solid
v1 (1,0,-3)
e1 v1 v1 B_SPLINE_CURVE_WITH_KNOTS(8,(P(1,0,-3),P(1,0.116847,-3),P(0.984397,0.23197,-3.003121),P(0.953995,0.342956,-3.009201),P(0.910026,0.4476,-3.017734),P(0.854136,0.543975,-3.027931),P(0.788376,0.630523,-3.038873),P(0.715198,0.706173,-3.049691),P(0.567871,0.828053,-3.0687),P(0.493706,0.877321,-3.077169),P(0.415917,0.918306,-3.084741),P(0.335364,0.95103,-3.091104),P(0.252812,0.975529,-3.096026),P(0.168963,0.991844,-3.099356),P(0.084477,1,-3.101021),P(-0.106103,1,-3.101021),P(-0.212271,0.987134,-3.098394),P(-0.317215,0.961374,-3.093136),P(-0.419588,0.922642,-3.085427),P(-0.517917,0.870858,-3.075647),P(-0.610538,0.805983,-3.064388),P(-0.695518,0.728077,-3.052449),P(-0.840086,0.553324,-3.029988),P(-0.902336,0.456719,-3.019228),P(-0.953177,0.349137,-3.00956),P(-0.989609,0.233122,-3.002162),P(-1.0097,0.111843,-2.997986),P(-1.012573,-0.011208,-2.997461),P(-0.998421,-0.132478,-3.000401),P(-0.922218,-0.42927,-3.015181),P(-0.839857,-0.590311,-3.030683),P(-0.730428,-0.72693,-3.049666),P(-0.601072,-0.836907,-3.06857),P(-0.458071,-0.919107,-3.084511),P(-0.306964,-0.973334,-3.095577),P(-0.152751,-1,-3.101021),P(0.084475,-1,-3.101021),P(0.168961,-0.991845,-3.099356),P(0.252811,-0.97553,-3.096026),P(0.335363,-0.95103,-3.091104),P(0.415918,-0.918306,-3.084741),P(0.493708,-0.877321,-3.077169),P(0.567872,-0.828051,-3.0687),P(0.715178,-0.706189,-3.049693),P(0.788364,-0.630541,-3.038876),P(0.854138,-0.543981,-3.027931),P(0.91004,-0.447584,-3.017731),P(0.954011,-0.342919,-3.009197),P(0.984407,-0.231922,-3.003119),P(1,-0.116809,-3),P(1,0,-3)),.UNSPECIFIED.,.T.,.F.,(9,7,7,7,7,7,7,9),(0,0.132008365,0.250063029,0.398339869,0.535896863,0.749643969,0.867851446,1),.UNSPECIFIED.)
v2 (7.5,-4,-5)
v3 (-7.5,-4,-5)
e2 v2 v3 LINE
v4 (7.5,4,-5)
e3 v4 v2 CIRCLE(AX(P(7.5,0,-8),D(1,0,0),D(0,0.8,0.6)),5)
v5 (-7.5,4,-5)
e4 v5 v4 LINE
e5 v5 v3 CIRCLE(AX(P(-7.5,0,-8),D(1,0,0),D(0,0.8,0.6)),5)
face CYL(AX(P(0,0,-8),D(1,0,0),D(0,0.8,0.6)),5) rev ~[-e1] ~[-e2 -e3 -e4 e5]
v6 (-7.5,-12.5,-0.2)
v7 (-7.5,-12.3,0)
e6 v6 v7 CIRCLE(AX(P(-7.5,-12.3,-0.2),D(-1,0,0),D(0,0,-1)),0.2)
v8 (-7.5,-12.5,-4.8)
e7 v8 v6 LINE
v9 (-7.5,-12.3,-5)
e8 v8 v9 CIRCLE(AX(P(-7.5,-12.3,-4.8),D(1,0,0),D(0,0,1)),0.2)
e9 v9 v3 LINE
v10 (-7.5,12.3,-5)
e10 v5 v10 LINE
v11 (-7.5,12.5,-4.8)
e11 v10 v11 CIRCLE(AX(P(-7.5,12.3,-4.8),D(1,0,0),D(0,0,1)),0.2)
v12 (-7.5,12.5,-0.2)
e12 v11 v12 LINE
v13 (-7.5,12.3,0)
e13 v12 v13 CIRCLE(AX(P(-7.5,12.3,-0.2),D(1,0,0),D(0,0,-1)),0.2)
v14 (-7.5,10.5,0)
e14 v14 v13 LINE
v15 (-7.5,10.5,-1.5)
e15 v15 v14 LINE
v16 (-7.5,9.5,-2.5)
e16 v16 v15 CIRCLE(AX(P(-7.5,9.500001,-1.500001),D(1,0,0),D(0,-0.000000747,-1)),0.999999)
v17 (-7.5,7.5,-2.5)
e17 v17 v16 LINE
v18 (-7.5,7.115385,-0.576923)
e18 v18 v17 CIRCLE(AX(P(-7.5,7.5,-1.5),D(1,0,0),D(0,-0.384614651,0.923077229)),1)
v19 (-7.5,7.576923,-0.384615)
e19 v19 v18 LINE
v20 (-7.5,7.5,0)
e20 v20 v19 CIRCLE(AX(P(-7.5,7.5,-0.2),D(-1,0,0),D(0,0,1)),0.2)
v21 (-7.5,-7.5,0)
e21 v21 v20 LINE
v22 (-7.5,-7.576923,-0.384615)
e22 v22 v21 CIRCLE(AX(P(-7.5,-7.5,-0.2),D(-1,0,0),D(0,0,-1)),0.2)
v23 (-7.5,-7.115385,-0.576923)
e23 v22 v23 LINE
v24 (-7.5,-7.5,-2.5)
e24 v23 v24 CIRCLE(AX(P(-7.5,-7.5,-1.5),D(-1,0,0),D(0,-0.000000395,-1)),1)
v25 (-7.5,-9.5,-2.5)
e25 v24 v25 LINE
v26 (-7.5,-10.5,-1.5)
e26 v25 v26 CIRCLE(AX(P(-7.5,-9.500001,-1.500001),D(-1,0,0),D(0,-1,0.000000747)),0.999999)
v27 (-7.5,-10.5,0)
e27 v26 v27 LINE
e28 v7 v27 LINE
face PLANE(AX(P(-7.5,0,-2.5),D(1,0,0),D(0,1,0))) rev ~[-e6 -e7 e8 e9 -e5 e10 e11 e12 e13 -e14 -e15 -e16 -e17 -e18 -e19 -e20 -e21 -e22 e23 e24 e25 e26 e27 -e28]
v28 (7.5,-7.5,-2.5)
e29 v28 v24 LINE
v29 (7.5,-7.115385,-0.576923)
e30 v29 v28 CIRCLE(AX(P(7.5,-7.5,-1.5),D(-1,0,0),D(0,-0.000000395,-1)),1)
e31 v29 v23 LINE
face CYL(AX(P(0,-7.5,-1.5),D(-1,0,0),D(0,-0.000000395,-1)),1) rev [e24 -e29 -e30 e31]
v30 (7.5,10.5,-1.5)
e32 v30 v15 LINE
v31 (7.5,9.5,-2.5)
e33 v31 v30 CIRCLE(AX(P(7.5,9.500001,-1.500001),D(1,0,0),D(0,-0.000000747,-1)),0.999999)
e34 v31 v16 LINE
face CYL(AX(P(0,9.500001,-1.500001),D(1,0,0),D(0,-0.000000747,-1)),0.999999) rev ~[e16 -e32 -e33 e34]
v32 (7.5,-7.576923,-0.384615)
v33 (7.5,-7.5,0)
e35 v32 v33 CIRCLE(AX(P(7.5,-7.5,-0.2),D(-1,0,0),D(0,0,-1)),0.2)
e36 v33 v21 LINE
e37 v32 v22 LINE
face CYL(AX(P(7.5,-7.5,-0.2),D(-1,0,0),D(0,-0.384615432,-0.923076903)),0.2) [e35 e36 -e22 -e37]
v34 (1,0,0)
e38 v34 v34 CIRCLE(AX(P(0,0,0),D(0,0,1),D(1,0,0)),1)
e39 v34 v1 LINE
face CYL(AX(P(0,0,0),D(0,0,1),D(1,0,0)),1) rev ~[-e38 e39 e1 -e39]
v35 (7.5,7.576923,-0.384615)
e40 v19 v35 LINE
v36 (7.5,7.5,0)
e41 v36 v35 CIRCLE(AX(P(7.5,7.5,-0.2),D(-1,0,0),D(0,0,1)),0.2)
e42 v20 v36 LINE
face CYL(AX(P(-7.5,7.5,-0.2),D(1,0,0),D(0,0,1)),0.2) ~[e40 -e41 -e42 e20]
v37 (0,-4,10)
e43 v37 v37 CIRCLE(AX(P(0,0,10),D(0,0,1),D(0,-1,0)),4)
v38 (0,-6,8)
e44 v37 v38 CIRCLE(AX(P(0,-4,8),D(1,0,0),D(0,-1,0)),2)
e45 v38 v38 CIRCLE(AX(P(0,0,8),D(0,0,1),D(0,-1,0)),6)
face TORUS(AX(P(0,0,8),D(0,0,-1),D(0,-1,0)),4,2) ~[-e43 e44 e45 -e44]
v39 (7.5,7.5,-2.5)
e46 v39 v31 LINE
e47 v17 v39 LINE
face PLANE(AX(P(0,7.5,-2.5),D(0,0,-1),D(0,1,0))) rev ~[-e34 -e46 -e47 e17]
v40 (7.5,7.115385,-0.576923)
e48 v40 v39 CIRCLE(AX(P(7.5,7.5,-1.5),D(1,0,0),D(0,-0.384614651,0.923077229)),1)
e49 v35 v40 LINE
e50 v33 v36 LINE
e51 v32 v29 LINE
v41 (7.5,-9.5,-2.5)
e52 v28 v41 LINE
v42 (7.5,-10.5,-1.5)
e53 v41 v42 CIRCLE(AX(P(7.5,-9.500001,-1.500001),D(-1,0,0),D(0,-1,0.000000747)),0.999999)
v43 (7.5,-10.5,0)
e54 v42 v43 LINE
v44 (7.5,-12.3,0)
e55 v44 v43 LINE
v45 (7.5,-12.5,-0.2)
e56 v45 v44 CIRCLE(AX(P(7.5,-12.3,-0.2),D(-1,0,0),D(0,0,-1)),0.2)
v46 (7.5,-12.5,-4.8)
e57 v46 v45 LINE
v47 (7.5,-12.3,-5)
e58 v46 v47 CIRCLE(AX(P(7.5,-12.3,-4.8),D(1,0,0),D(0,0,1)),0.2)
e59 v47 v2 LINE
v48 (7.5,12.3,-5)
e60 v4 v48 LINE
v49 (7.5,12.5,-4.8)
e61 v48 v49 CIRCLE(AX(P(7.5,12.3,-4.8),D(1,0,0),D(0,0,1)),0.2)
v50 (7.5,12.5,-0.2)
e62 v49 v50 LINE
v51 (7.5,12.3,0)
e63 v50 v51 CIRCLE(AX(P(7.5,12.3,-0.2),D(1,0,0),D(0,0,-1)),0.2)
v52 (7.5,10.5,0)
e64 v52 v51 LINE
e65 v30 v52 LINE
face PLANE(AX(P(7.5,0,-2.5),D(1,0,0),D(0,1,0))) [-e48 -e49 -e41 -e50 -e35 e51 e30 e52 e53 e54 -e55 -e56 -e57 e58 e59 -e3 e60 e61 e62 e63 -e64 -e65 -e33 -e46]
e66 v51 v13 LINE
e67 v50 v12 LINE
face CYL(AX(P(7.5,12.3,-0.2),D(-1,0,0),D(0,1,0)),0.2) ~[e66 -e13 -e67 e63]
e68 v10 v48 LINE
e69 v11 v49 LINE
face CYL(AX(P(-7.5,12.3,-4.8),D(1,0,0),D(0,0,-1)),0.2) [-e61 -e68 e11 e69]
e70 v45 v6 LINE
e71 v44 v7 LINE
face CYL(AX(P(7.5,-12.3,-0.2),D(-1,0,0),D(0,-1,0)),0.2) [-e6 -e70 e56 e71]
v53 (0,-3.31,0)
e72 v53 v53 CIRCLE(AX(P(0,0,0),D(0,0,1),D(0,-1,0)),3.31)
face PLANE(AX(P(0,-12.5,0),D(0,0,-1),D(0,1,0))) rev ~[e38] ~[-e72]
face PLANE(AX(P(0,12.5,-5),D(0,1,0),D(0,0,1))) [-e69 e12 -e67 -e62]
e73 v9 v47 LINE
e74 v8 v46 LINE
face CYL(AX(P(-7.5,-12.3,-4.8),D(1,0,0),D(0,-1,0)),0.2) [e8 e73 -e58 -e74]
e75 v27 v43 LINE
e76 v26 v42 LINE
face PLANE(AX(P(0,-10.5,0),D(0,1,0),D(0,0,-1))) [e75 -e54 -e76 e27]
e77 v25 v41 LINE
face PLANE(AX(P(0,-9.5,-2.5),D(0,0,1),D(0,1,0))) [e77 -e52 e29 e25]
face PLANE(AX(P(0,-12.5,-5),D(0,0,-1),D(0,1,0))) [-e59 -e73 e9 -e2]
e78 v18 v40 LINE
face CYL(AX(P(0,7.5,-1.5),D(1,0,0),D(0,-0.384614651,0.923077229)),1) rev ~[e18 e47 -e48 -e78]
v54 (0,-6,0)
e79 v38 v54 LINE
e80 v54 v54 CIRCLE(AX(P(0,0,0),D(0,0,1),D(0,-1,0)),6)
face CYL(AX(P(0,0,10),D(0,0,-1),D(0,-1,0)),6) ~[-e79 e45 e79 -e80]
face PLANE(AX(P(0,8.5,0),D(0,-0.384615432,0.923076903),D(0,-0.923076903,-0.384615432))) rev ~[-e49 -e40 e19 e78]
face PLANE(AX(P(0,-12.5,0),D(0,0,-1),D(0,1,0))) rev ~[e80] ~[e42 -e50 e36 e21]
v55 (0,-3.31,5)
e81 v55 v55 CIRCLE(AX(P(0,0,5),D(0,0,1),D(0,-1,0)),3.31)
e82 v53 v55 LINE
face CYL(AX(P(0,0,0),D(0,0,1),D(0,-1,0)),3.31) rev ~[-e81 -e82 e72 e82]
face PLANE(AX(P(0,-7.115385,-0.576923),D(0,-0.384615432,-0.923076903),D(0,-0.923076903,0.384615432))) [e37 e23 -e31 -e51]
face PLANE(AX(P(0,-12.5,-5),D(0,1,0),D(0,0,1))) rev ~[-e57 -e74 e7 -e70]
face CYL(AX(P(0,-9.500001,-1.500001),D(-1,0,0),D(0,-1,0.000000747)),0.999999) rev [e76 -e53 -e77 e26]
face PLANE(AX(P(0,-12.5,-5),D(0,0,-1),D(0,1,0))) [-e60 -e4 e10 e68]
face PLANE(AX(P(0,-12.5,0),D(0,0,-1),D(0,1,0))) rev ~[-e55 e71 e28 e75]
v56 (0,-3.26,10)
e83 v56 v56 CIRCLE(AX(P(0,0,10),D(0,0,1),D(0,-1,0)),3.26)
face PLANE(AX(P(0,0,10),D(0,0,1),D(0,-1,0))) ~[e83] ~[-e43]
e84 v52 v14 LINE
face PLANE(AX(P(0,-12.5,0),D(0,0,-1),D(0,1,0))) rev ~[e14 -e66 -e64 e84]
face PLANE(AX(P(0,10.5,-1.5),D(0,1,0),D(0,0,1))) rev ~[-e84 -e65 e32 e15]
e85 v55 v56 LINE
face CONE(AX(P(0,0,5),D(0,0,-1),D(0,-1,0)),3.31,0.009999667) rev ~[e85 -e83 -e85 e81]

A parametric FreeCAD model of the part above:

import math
import FreeCAD as App
import Part
import Sketcher
from FreeCAD import Vector


def edges_at(feature, points):
    """Names of the edges that pass closest to the given points."""
    edges = feature.Shape.Edges
    near = lambda p: min(range(len(edges)), key=lambda i: edges[i].distToShape(Part.Vertex(*p))[0])
    return sorted({f"Edge{near(p) + 1}" for p in points})

doc = App.newDocument("Part")
body = doc.addObject("PartDesign::Body", "Body")

# Sketch on YZ plane
sketch1 = body.newObject("Sketcher::SketchObject", "Sketch")
sketch1.AttachmentSupport = (doc.getObject("YZ_Plane"), [""])
sketch1.MapMode = "FlatFace"
sketch1.addGeometry([
    Part.LineSegment(Vector(-6, 0, 0), Vector(-3.3, 0, 0)),  # 0
    Part.LineSegment(Vector(-3.3, 0, 0), Vector(-3.3, 5, 0)),  # 1
    Part.LineSegment(Vector(-3.3, 5, 0), Vector(-3.3, 10, 0)),  # 2
    Part.LineSegment(Vector(-3.3, 10, 0), Vector(-6, 10, 0)),  # 3
    Part.LineSegment(Vector(-6, 10, 0), Vector(-6, 0, 0)),  # 4
], False)
sketch1.addConstraint([
    Sketcher.Constraint("Coincident", 0, 2, 1, 1),
    Sketcher.Constraint("Coincident", 1, 2, 2, 1),
    Sketcher.Constraint("Coincident", 2, 2, 3, 1),
    Sketcher.Constraint("Coincident", 3, 2, 4, 1),
    Sketcher.Constraint("Coincident", 4, 2, 0, 1),
    Sketcher.Constraint("Horizontal", 0),
    Sketcher.Constraint("Vertical", 1),
    Sketcher.Constraint("Horizontal", 3),
    Sketcher.Constraint("Vertical", 4),
    Sketcher.Constraint("PointOnObject", 0, 2, -1),
    Sketcher.Constraint("DistanceY", 1, 1, 1, 2, 5.0),
    Sketcher.Constraint("DistanceY", 4, 2, 4, 1, 10.0),
    Sketcher.Constraint("DistanceX", 3, 2, -1, 1, 6.0),
    Sketcher.Constraint("DistanceX", 0, 1, 0, 2, 2.69),
    Sketcher.Constraint("DistanceX", 3, 2, 3, 1, 2.74),
])
revolution = body.newObject("PartDesign::Revolution", "Revolution")
revolution.Profile = sketch1
revolution.ReferenceAxis = (sketch1, ["V_Axis"])
revolution.Angle = 360
doc.recompute()

fillet = body.newObject("PartDesign::Fillet", "Fillet")
fillet.Base = (revolution, edges_at(revolution, [(0, 6, 10)]))
fillet.Radius = 2

# Sketch on YZ plane
sketch2 = body.newObject("Sketcher::SketchObject", "Sketch001")
sketch2.AttachmentSupport = (doc.getObject("YZ_Plane"), [""])
sketch2.MapMode = "FlatFace"
sketch2.addGeometry([
    Part.LineSegment(Vector(-12, 0, 0), Vector(-12, -5, 0)),
    Part.LineSegment(Vector(-12, -5, 0), Vector(12, -5, 0)),
    Part.LineSegment(Vector(12, -5, 0), Vector(12, 0, 0)),
    Part.LineSegment(Vector(12, 0, 0), Vector(-12, 0, 0)),
], False)
sketch2.addConstraint([
    Sketcher.Constraint("Coincident", 0, 2, 1, 1),
    Sketcher.Constraint("Coincident", 1, 2, 2, 1),
    Sketcher.Constraint("Coincident", 2, 2, 3, 1),
    Sketcher.Constraint("Coincident", 3, 2, 0, 1),
    Sketcher.Constraint("Vertical", 0),
    Sketcher.Constraint("Horizontal", 1),
    Sketcher.Constraint("Vertical", 2),
    Sketcher.Constraint("Horizontal", 3),
    Sketcher.Constraint("Symmetric", 2, 2, 3, 2, -1, 1),
    Sketcher.Constraint("DistanceX", 1, 1, 1, 2, 25.0),
    Sketcher.Constraint("DistanceY", 0, 2, 0, 1, 5.0),
])
pad1 = body.newObject("PartDesign::Pad", "Pad")
pad1.Profile = sketch2
pad1.Length = 15
pad1.Midplane = True

# Sketch on YZ plane
sketch3 = body.newObject("Sketcher::SketchObject", "Sketch002")
sketch3.AttachmentSupport = (doc.getObject("YZ_Plane"), [""])
sketch3.MapMode = "FlatFace"
sketch3.addGeometry([
    Part.LineSegment(Vector(-8.5, 0, 0), Vector(-10.5, 0, 0)),  # 0
    Part.LineSegment(Vector(-10.5, 0, 0), Vector(-10.5, -1.5, 0)),  # 1
    Part.ArcOfCircle(Part.Circle(Vector(-9.5, -1.5, 0), Vector(0, 0, 1), 1), math.radians(180), math.radians(270)),  # 2
    Part.LineSegment(Vector(-9.5, -2.5, 0), Vector(-7.5, -2.5, 0)),  # 3
    Part.ArcOfCircle(Part.Circle(Vector(-7.5, -1.5, 0), Vector(0, 0, 1), 1), math.radians(-90), math.radians(67)),  # 4
    Part.LineSegment(Vector(-7.1, -0.6, 0), Vector(-8.5, 0, 0)),  # 5
    Part.LineSegment(Vector(10.5, 0, 0), Vector(8.5, 0, 0)),  # 6
    Part.LineSegment(Vector(8.5, 0, 0), Vector(7.1, -0.6, 0)),  # 7
    Part.ArcOfCircle(Part.Circle(Vector(7.5, -1.5, 0), Vector(0, 0, 1), 1), math.radians(113), math.radians(270)),  # 8
    Part.LineSegment(Vector(7.5, -2.5, 0), Vector(9.5, -2.5, 0)),  # 9
    Part.ArcOfCircle(Part.Circle(Vector(9.5, -1.5, 0), Vector(0, 0, 1), 1), math.radians(-90), math.radians(0)),  # 10
    Part.LineSegment(Vector(10.5, -1.5, 0), Vector(10.5, 0, 0)),  # 11
], False)
sketch3.addConstraint([
    Sketcher.Constraint("Coincident", 0, 2, 1, 1),
    Sketcher.Constraint("Tangent", 1, 2, 2, 1),
    Sketcher.Constraint("Tangent", 2, 2, 3, 1),
    Sketcher.Constraint("Tangent", 3, 2, 4, 1),
    Sketcher.Constraint("Tangent", 4, 2, 5, 1),
    Sketcher.Constraint("Coincident", 5, 2, 0, 1),
    Sketcher.Constraint("Coincident", 6, 2, 7, 1),
    Sketcher.Constraint("Tangent", 7, 2, 8, 1),
    Sketcher.Constraint("Tangent", 8, 2, 9, 1),
    Sketcher.Constraint("Tangent", 9, 2, 10, 1),
    Sketcher.Constraint("Tangent", 10, 2, 11, 1),
    Sketcher.Constraint("Coincident", 11, 2, 6, 1),
    Sketcher.Constraint("Horizontal", 0),
    Sketcher.Constraint("Vertical", 1),
    Sketcher.Constraint("Horizontal", 3),
    Sketcher.Constraint("Horizontal", 6),
    Sketcher.Constraint("Horizontal", 9),
    Sketcher.Constraint("Vertical", 11),
    Sketcher.Constraint("Equal", 2, 4),
    Sketcher.Constraint("Equal", 4, 8),
    Sketcher.Constraint("Equal", 8, 10),
    Sketcher.Constraint("Symmetric", 5, 2, 6, 2, -1, 1),
    Sketcher.Constraint("Symmetric", 4, 3, 8, 3, -2),
    Sketcher.Constraint("Symmetric", 0, 2, 11, 2, -2),
    Sketcher.Constraint("Equal", 0, 3),
    Sketcher.Constraint("Radius", 2, 0.999999),
    Sketcher.Constraint("DistanceX", 0, 2, 0, 1, 2.0),
    Sketcher.Constraint("DistanceY", 1, 2, 1, 1, 1.5),
    Sketcher.Constraint("DistanceX", 4, 3, 8, 3, 14.999999),
])
pocket1 = body.newObject("PartDesign::Pocket", "Pocket")
pocket1.Profile = sketch3
pocket1.Length = 25
pocket1.Midplane = True
doc.recompute()

fillet2 = body.newObject("PartDesign::Fillet", "Fillet001")
fillet2.Base = (pocket1, edges_at(pocket1, [
    (0, -8.5, 0),
    (0, 8.5, 0),
    (0, -12.5, 0),
    (0, 12.5, 0),
    (0, -12.5, -5),
    (0, 12.5, -5),
]))
fillet2.Radius = 0.2

# Sketch on YZ plane
sketch4 = body.newObject("Sketcher::SketchObject", "Sketch003")
sketch4.AttachmentSupport = (doc.getObject("YZ_Plane"), [""])
sketch4.MapMode = "FlatFace"
sketch4.addGeometry([
    Part.LineSegment(Vector(-4, -5, 0), Vector(4, -5, 0)),
    Part.ArcOfCircle(Part.Circle(Vector(0, -8, 0), Vector(0, 0, 1), 5), math.radians(37), math.radians(143)),
], False)
sketch4.addConstraint([
    Sketcher.Constraint("Coincident", 0, 1, 1, 2),
    Sketcher.Constraint("Coincident", 1, 1, 0, 2),
    Sketcher.Constraint("Horizontal", 0),
    Sketcher.Constraint("PointOnObject", 1, 3, -2),
    Sketcher.Constraint("Radius", 1, 5.0),
    Sketcher.Constraint("DistanceX", 0, 1, 0, 2, 8.0),
    Sketcher.Constraint("DistanceY", 1, 3, -1, 1, 8.0),
])
pocket2 = body.newObject("PartDesign::Pocket", "Pocket001")
pocket2.Profile = sketch4
pocket2.Length = 25
pocket2.Midplane = True

# Sketch on XY plane
sketch5 = body.newObject("Sketcher::SketchObject", "Sketch004")
sketch5.AttachmentSupport = (doc.getObject("XY_Plane"), [""])
sketch5.MapMode = "FlatFace"
sketch5.addGeometry(Part.Circle(Vector(0, 0, 0), Vector(0, 0, 1), 1), False)
sketch5.addConstraint([
    Sketcher.Constraint("Coincident", 0, 3, -1, 1),
    Sketcher.Constraint("Diameter", 0, 2.0),
])
pocket3 = body.newObject("PartDesign::Pocket", "Pocket002")
pocket3.Profile = sketch5
pocket3.Type = "ThroughAll"

doc.recompute()
